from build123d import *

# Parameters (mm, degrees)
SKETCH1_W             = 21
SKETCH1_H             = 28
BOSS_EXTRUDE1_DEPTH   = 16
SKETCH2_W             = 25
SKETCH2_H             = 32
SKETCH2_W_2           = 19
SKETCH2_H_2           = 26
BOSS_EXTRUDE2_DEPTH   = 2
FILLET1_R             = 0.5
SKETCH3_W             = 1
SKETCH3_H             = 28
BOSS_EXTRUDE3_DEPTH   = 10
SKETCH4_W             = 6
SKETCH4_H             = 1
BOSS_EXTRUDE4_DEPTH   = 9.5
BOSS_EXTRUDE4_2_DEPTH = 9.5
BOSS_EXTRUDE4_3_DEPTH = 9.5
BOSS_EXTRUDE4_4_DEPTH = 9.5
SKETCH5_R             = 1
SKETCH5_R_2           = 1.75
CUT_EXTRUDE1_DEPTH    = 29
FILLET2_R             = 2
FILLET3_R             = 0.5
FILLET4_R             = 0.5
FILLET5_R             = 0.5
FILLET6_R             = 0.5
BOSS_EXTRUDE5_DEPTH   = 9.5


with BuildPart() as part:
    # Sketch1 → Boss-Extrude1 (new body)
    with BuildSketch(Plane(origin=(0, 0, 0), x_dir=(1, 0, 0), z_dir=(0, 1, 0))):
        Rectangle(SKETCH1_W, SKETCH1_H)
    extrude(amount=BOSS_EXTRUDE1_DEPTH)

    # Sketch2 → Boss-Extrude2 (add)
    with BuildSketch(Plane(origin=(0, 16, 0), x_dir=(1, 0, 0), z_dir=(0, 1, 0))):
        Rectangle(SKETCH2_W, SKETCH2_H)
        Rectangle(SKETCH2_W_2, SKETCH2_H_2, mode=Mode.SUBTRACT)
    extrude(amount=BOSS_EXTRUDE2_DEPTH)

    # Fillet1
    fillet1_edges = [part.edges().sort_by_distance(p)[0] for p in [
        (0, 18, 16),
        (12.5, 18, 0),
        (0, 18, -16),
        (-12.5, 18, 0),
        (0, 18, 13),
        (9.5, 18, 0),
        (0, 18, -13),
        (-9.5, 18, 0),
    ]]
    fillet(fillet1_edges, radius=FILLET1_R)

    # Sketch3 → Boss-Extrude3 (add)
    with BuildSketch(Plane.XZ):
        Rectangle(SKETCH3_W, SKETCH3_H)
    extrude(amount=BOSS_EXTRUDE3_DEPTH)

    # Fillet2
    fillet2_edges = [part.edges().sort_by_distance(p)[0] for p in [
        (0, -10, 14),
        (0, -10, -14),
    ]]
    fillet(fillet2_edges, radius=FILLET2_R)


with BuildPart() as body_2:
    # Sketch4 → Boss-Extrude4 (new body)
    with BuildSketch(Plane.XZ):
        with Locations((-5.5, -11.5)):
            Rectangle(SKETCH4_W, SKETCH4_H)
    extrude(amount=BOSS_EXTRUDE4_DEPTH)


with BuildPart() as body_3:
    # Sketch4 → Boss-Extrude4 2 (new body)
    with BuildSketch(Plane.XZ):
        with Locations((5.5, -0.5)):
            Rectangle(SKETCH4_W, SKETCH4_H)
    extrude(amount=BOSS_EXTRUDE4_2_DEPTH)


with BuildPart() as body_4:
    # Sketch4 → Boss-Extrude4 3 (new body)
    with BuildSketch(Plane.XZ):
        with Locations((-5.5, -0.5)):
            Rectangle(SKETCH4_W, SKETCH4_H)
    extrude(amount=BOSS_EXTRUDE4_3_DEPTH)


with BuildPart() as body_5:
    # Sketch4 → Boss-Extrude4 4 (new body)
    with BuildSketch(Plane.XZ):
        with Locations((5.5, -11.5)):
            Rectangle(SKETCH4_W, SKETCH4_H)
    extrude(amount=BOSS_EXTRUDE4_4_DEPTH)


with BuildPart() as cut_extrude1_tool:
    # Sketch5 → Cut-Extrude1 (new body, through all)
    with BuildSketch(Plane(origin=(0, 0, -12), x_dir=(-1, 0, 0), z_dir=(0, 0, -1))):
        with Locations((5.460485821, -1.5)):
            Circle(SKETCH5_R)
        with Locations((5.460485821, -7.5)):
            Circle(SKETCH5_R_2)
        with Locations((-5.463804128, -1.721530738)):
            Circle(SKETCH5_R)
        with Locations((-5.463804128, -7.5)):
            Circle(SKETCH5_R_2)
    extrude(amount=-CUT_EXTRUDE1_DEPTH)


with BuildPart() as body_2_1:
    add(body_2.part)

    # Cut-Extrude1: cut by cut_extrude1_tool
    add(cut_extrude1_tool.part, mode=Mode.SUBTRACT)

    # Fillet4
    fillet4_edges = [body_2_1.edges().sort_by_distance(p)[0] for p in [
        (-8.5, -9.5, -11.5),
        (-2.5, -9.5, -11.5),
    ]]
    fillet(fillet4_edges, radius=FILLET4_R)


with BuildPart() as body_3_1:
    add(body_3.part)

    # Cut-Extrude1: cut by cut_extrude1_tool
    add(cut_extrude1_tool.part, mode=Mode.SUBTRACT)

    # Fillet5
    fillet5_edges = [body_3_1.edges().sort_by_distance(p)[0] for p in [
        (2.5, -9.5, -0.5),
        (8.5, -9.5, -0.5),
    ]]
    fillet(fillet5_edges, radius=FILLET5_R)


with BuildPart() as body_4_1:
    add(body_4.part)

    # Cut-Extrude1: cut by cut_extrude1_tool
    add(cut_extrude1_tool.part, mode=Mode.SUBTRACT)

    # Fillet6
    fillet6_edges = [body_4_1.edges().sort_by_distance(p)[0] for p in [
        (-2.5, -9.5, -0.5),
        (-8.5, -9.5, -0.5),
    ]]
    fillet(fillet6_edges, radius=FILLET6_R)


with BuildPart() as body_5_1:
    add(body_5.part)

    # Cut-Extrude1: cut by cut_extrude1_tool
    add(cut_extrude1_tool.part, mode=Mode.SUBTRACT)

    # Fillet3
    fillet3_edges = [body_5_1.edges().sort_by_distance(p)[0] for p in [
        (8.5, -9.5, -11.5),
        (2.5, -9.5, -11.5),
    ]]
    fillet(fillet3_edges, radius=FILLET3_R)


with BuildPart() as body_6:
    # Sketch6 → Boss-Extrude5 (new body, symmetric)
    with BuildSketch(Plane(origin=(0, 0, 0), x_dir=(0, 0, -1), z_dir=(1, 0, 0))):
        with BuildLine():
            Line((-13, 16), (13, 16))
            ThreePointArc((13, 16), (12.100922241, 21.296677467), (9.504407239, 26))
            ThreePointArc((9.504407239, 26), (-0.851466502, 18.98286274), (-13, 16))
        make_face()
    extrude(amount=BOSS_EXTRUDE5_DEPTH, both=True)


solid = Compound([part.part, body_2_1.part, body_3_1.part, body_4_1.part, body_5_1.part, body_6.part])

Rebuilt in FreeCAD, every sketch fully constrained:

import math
import FreeCAD as App
import Part
import Sketcher


def edges_at(feature, points):
    """Names of the edges that pass closest to the given points."""
    edges = feature.Shape.Edges
    near = lambda p: min(range(len(edges)), key=lambda i: edges[i].distToShape(Part.Vertex(*p))[0])
    return sorted({f"Edge{near(p) + 1}" for p in points})


def add_polygon(sketch, points):
    """Adds a closed chain of lines whose ends are joined by coincident constraints."""
    first, n = sketch.GeometryCount, len(points)
    for a, b in zip(points, points[1:] + points[:1]):
        sketch.addGeometry(Part.LineSegment(App.Vector(*a, 0), App.Vector(*b, 0)), False)
    for i in range(n):
        sketch.addConstraint(Sketcher.Constraint("Coincident", first + i, 2, first + (i + 1) % n, 1))

doc = App.newDocument("Part")
params = doc.addObject("Spreadsheet::Sheet", "Params")
for row, (alias, value) in enumerate([
    ("sketch1_width", "21 mm"),
    ("sketch1_height", "28 mm"),
    ("pad1_length", "16 mm"),
    ("sketch2_width", "25 mm"),
    ("sketch2_width2", "19 mm"),
    ("sketch2_height", "32 mm"),
    ("sketch2_height2", "26 mm"),
    ("pad2_length", "2 mm"),
    ("fillet_radius", "0.5 mm"),
    ("sketch3_width", "1 mm"),
    ("sketch3_height", "28 mm"),
    ("pad3_length", "10 mm"),
    ("fillet2_radius", "2 mm"),
    ("sketch4_width", "6 mm"),
    ("sketch4_height", "1 mm"),
    ("pad4_length", "9.5 mm"),
    ("sketch5_width", "6 mm"),
    ("sketch5_height", "1 mm"),
    ("pad5_length", "9.5 mm"),
    ("sketch6_width", "6 mm"),
    ("sketch6_height", "1 mm"),
    ("pad6_length", "9.5 mm"),
    ("sketch7_width", "6 mm"),
    ("sketch7_height", "1 mm"),
    ("pad7_length", "9.5 mm"),
    ("sketch8_diameter", "2 mm"),
    ("sketch8_diameter2", "3.5 mm"),
    ("pad8_length", "29 mm"),
    ("fillet3_radius", "0.5 mm"),
    ("fillet4_radius", "0.5 mm"),
    ("fillet5_radius", "0.5 mm"),
    ("fillet6_radius", "0.5 mm"),
    ("sketch9_height", "26 mm"),
    ("pad9_length", "19 mm"),
], start=1):
    params.set(f"A{row}", alias)
    params.set(f"B{row}", "=" + value)
    params.setAlias(f"B{row}", alias)

body = doc.addObject("PartDesign::Body", "Body")

# Sketch on XZ plane
sketch1 = body.newObject("Sketcher::SketchObject", "Sketch")
sketch1.AttachmentSupport = (doc.getObject("XZ_Plane"), [""])
sketch1.MapMode = "FlatFace"
add_polygon(sketch1, [(-10, -14), (-10, 14), (10, 14), (10, -14)])  # lines 0-3
sketch1.addConstraint([
    Sketcher.Constraint("Vertical", 0),
    Sketcher.Constraint("Horizontal", 1),
    Sketcher.Constraint("Vertical", 2),
    Sketcher.Constraint("Horizontal", 3),
    Sketcher.Constraint("Symmetric", 0, 2, 2, 2, -1, 1),
    Sketcher.Constraint("DistanceX", 1, 1, 1, 2, 21.0),
    Sketcher.Constraint("DistanceY", 0, 1, 0, 2, 28.0),
])
sketch1.setExpression("Constraints[9]", "Params.sketch1_width")
sketch1.setExpression("Constraints[10]", "Params.sketch1_height")
pad1 = body.newObject("PartDesign::Pad", "Pad")
pad1.Profile = sketch1
pad1.setExpression("Length", "Params.pad1_length")
pad1.Reversed = True

# Sketch on XZ plane
sketch2 = body.newObject("Sketcher::SketchObject", "Sketch001")
sketch2.AttachmentSupport = (doc.getObject("XZ_Plane"), [""])
sketch2.MapMode = "FlatFace"
sketch2.AttachmentOffset = App.Placement(App.Vector(0, 0, -16), App.Rotation())
add_polygon(sketch2, [(-12, -16), (-12, 16), (12, 16), (12, -16)])  # lines 0-3
add_polygon(sketch2, [(10, 13), (-10, 13), (-10, -13), (10, -13)])  # lines 4-7
sketch2.addConstraint([
    Sketcher.Constraint("Vertical", 0),
    Sketcher.Constraint("Horizontal", 1),
    Sketcher.Constraint("Vertical", 2),
    Sketcher.Constraint("Horizontal", 3),
    Sketcher.Constraint("Horizontal", 4),
    Sketcher.Constraint("Vertical", 5),
    Sketcher.Constraint("Horizontal", 6),
    Sketcher.Constraint("Vertical", 7),
    Sketcher.Constraint("Symmetric", 0, 2, 2, 2, -1, 1),
    Sketcher.Constraint("Symmetric", 4, 2, 6, 2, -1, 1),
    Sketcher.Constraint("DistanceX", 1, 1, 1, 2, 25.0),
    Sketcher.Constraint("DistanceX", 4, 2, 4, 1, 19.0),
    Sketcher.Constraint("DistanceY", 0, 1, 0, 2, 32.0),
    Sketcher.Constraint("DistanceY", 5, 2, 5, 1, 26.0),
])
sketch2.setExpression("Constraints[18]", "Params.sketch2_width")
sketch2.setExpression("Constraints[19]", "Params.sketch2_width2")
sketch2.setExpression("Constraints[20]", "Params.sketch2_height")
sketch2.setExpression("Constraints[21]", "Params.sketch2_height2")
pad2 = body.newObject("PartDesign::Pad", "Pad001")
pad2.Profile = sketch2
pad2.setExpression("Length", "Params.pad2_length")
pad2.Reversed = True
doc.recompute()

fillet = body.newObject("PartDesign::Fillet", "Fillet")
fillet.Base = (pad2, edges_at(pad2, [
    (0, 18, 16),
    (12.5, 18, 0),
    (0, 18, -16),
    (-12.5, 18, 0),
    (0, 18, 13),
    (9.5, 18, 0),
    (0, 18, -13),
    (-9.5, 18, 0),
]))
fillet.setExpression("Radius", "Params.fillet_radius")

# Sketch on XZ plane
sketch3 = body.newObject("Sketcher::SketchObject", "Sketch002")
sketch3.AttachmentSupport = (doc.getObject("XZ_Plane"), [""])
sketch3.MapMode = "FlatFace"
add_polygon(sketch3, [(-0.5, 14), (-0.5, -14), (0.5, -14), (0.5, 14)])  # lines 0-3
sketch3.addConstraint([
    Sketcher.Constraint("Vertical", 0),
    Sketcher.Constraint("Horizontal", 1),
    Sketcher.Constraint("Vertical", 2),
    Sketcher.Constraint("Horizontal", 3),
    Sketcher.Constraint("Symmetric", 0, 2, 2, 2, -1, 1),
    Sketcher.Constraint("DistanceX", 1, 1, 1, 2, 1.0),
    Sketcher.Constraint("DistanceY", 0, 2, 0, 1, 28.0),
])
sketch3.setExpression("Constraints[9]", "Params.sketch3_width")
sketch3.setExpression("Constraints[10]", "Params.sketch3_height")
pad3 = body.newObject("PartDesign::Pad", "Pad002")
pad3.Profile = sketch3
pad3.setExpression("Length", "Params.pad3_length")
doc.recompute()

fillet2 = body.newObject("PartDesign::Fillet", "Fillet001")
fillet2.Base = (pad3, edges_at(pad3, [(0, -10, 14), (0, -10, -14)]))
fillet2.setExpression("Radius", "Params.fillet2_radius")
body2 = doc.addObject("PartDesign::Body", "Body001")

# Sketch on XZ plane
sketch4 = body2.newObject("Sketcher::SketchObject", "Sketch003")
sketch4.AttachmentSupport = (doc.getObject("XZ_Plane001"), [""])
sketch4.MapMode = "FlatFace"
add_polygon(sketch4, [(-8.5, -11), (-8.5, -12), (-2.5, -12), (-2.5, -11)])  # lines 0-3
sketch4.addConstraint([
    Sketcher.Constraint("Vertical", 0),
    Sketcher.Constraint("Horizontal", 1),
    Sketcher.Constraint("Vertical", 2),
    Sketcher.Constraint("Horizontal", 3),
    Sketcher.Constraint("DistanceX", 1, 1, 1, 2, 6.0),
    Sketcher.Constraint("DistanceY", 0, 2, 0, 1, 1.0),
    Sketcher.Constraint("DistanceY", 0, 2, -1, 1, 12.0),
    Sketcher.Constraint("DistanceX", 0, 2, -1, 1, 8.5),
])
sketch4.setExpression("Constraints[8]", "Params.sketch4_width")
sketch4.setExpression("Constraints[9]", "Params.sketch4_height")
pad4 = body2.newObject("PartDesign::Pad", "Pad003")
pad4.Profile = sketch4
pad4.setExpression("Length", "Params.pad4_length")
body3 = doc.addObject("PartDesign::Body", "Body002")

# Sketch on XZ plane
sketch5 = body3.newObject("Sketcher::SketchObject", "Sketch004")
sketch5.AttachmentSupport = (doc.getObject("XZ_Plane002"), [""])
sketch5.MapMode = "FlatFace"
add_polygon(sketch5, [(2.5, 0), (2.5, -1), (8.5, -1), (8.5, 0)])  # lines 0-3
sketch5.addConstraint([
    Sketcher.Constraint("Vertical", 0),
    Sketcher.Constraint("Horizontal", 1),
    Sketcher.Constraint("Vertical", 2),
    Sketcher.Constraint("Horizontal", 3),
    Sketcher.Constraint("PointOnObject", 2, 2, -1),
    Sketcher.Constraint("DistanceX", 1, 1, 1, 2, 6.0),
    Sketcher.Constraint("DistanceY", 0, 2, 0, 1, 1.0),
    Sketcher.Constraint("DistanceX", -1, 1, 0, 2, 2.5),
])
sketch5.setExpression("Constraints[9]", "Params.sketch5_width")
sketch5.setExpression("Constraints[10]", "Params.sketch5_height")
pad5 = body3.newObject("PartDesign::Pad", "Pad004")
pad5.Profile = sketch5
pad5.setExpression("Length", "Params.pad5_length")
body4 = doc.addObject("PartDesign::Body", "Body003")

# Sketch on XZ plane
sketch6 = body4.newObject("Sketcher::SketchObject", "Sketch005")
sketch6.AttachmentSupport = (doc.getObject("XZ_Plane003"), [""])
sketch6.MapMode = "FlatFace"
add_polygon(sketch6, [(-8.5, 0), (-8.5, -1), (-2.5, -1), (-2.5, 0)])  # lines 0-3
sketch6.addConstraint([
    Sketcher.Constraint("Vertical", 0),
    Sketcher.Constraint("Horizontal", 1),
    Sketcher.Constraint("Vertical", 2),
    Sketcher.Constraint("Horizontal", 3),
    Sketcher.Constraint("PointOnObject", 2, 2, -1),
    Sketcher.Constraint("DistanceX", 1, 1, 1, 2, 6.0),
    Sketcher.Constraint("DistanceY", 0, 2, 0, 1, 1.0),
    Sketcher.Constraint("DistanceX", 0, 2, -1, 1, 8.5),
])
sketch6.setExpression("Constraints[9]", "Params.sketch6_width")
sketch6.setExpression("Constraints[10]", "Params.sketch6_height")
pad6 = body4.newObject("PartDesign::Pad", "Pad005")
pad6.Profile = sketch6
pad6.setExpression("Length", "Params.pad6_length")
body5 = doc.addObject("PartDesign::Body", "Body004")

# Sketch on XZ plane
sketch7 = body5.newObject("Sketcher::SketchObject", "Sketch006")
sketch7.AttachmentSupport = (doc.getObject("XZ_Plane004"), [""])
sketch7.MapMode = "FlatFace"
add_polygon(sketch7, [(2.5, -11), (2.5, -12), (8.5, -12), (8.5, -11)])  # lines 0-3
sketch7.addConstraint([
    Sketcher.Constraint("Vertical", 0),
    Sketcher.Constraint("Horizontal", 1),
    Sketcher.Constraint("Vertical", 2),
    Sketcher.Constraint("Horizontal", 3),
    Sketcher.Constraint("DistanceX", 1, 1, 1, 2, 6.0),
    Sketcher.Constraint("DistanceY", 0, 2, 0, 1, 1.0),
    Sketcher.Constraint("DistanceY", 0, 2, -1, 1, 12.0),
    Sketcher.Constraint("DistanceX", -1, 1, 0, 2, 2.5),
])
sketch7.setExpression("Constraints[8]", "Params.sketch7_width")
sketch7.setExpression("Constraints[9]", "Params.sketch7_height")
pad7 = body5.newObject("PartDesign::Pad", "Pad006")
pad7.Profile = sketch7
pad7.setExpression("Length", "Params.pad7_length")
body6 = doc.addObject("PartDesign::Body", "Body005")
body6.AllowCompound = True

# Sketch on XY plane
sketch8 = body6.newObject("Sketcher::SketchObject", "Sketch007")
sketch8.AttachmentSupport = (doc.getObject("XY_Plane005"), [""])
sketch8.MapMode = "FlatFace"
sketch8.AttachmentOffset = App.Placement(App.Vector(0, 0, -12), App.Rotation())
sketch8.addGeometry([
    Part.Circle(App.Vector(-5.5, -1.5, 0), App.Vector(0, 0, 1), 1),
    Part.Circle(App.Vector(-5.5, -7.5, 0), App.Vector(0, 0, 1), 1.8),
    Part.Circle(App.Vector(5.5, -1.7, 0), App.Vector(0, 0, 1), 1),
    Part.Circle(App.Vector(5.5, -7.5, 0), App.Vector(0, 0, 1), 1.8),
], False)
sketch8.addConstraint([
    Sketcher.Constraint("Equal", 0, 2),
    Sketcher.Constraint("Equal", 1, 3),
    Sketcher.Constraint("Horizontal", 1, 3, 3, 3),
    Sketcher.Constraint("Vertical", 0, 3, 1, 3),
    Sketcher.Constraint("Vertical", 2, 3, 3, 3),
    Sketcher.Constraint("Diameter", 0, 2.0),
    Sketcher.Constraint("Diameter", 1, 3.5),
    Sketcher.Constraint("DistanceY", 1, 3, 0, 3, 6.0),
    Sketcher.Constraint("DistanceY", 0, 3, -1, 1, 1.5),
    Sketcher.Constraint("DistanceY", 2, 3, -1, 1, 1.721531),
    Sketcher.Constraint("DistanceX", 0, 3, 2, 3, 10.92429),
    Sketcher.Constraint("DistanceX", 0, 3, -1, 1, 5.460486),
])
sketch8.setExpression("Constraints[5]", "Params.sketch8_diameter")
sketch8.setExpression("Constraints[6]", "Params.sketch8_diameter2")
pad8 = body6.newObject("PartDesign::Pad", "Pad007")
pad8.Profile = sketch8
pad8.setExpression("Length", "Params.pad8_length")
doc.recompute()

body7 = doc.addObject("PartDesign::Body", "Body006")
body7.BaseFeature = body6
boolean = body2.newObject("PartDesign::Boolean", "Boolean")
boolean.Type = "Cut"
boolean.addObjects([body7])
doc.recompute()

fillet3 = body2.newObject("PartDesign::Fillet", "Fillet002")
fillet3.Base = (boolean, edges_at(boolean, [(-8.5, -9.5, -11.5), (-2.5, -9.5, -11.5)]))
fillet3.setExpression("Radius", "Params.fillet3_radius")
doc.recompute()

body8 = doc.addObject("PartDesign::Body", "Body007")
body8.BaseFeature = body6
boolean2 = body3.newObject("PartDesign::Boolean", "Boolean001")
boolean2.Type = "Cut"
boolean2.addObjects([body8])
doc.recompute()

fillet4 = body3.newObject("PartDesign::Fillet", "Fillet003")
fillet4.Base = (boolean2, edges_at(boolean2, [(2.5, -9.5, -0.5), (8.5, -9.5, -0.5)]))
fillet4.setExpression("Radius", "Params.fillet4_radius")
doc.recompute()

body9 = doc.addObject("PartDesign::Body", "Body008")
body9.BaseFeature = body6
boolean3 = body4.newObject("PartDesign::Boolean", "Boolean002")
boolean3.Type = "Cut"
boolean3.addObjects([body9])
doc.recompute()

fillet5 = body4.newObject("PartDesign::Fillet", "Fillet004")
fillet5.Base = (boolean3, edges_at(boolean3, [(-2.5, -9.5, -0.5), (-8.5, -9.5, -0.5)]))
fillet5.setExpression("Radius", "Params.fillet5_radius")
doc.recompute()

boolean4 = body5.newObject("PartDesign::Boolean", "Boolean003")
boolean4.Type = "Cut"
boolean4.addObjects([body6])
doc.recompute()

fillet6 = body5.newObject("PartDesign::Fillet", "Fillet005")
fillet6.Base = (boolean4, edges_at(boolean4, [(8.5, -9.5, -11.5), (2.5, -9.5, -11.5)]))
fillet6.setExpression("Radius", "Params.fillet6_radius")
body10 = doc.addObject("PartDesign::Body", "Body009")

# Sketch on YZ plane
sketch9 = body10.newObject("Sketcher::SketchObject", "Sketch008")
sketch9.AttachmentSupport = (doc.getObject("YZ_Plane009"), [""])
sketch9.MapMode = "FlatFace"
sketch9.addGeometry([
    Part.LineSegment(App.Vector(16, 13, 0), App.Vector(16, -13, 0)),
    Part.ArcOfCircle(Part.Circle(App.Vector(16, 3, 0), App.Vector(0, 0, 1), 16), math.radians(-90), math.radians(-51)),
    Part.ArcOfCircle(Part.Circle(App.Vector(51, 15, 0), App.Vector(0, 0, 1), 35), math.radians(-176), math.radians(-136)),
], False)
sketch9.addConstraint([
    Sketcher.Constraint("Coincident", 0, 2, 1, 1),
    Sketcher.Constraint("Coincident", 1, 2, 2, 2),
    Sketcher.Constraint("Coincident", 2, 1, 0, 1),
    Sketcher.Constraint("Vertical", 0),
    Sketcher.Constraint("Vertical", 1, 3, 0, 2),
    Sketcher.Constraint("DistanceY", 0, 2, 0, 1, 26.0),
    Sketcher.Constraint("DistanceX", -1, 1, 1, 3, 16.0),
    Sketcher.Constraint("DistanceY", 0, 2, -1, 1, 13.0),
    Sketcher.Constraint("DistanceX", -1, 1, 1, 2, 26.0),
    Sketcher.Constraint("Radius", 1, 16.051522),
    Sketcher.Constraint("Radius", 2, 35.446723),
])
sketch9.setExpression("Constraints[5]", "Params.sketch9_height")
pad9 = body10.newObject("PartDesign::Pad", "Pad008")
pad9.Profile = sketch9
pad9.setExpression("Length", "Params.pad9_length")
pad9.Midplane = True

doc.recompute()
